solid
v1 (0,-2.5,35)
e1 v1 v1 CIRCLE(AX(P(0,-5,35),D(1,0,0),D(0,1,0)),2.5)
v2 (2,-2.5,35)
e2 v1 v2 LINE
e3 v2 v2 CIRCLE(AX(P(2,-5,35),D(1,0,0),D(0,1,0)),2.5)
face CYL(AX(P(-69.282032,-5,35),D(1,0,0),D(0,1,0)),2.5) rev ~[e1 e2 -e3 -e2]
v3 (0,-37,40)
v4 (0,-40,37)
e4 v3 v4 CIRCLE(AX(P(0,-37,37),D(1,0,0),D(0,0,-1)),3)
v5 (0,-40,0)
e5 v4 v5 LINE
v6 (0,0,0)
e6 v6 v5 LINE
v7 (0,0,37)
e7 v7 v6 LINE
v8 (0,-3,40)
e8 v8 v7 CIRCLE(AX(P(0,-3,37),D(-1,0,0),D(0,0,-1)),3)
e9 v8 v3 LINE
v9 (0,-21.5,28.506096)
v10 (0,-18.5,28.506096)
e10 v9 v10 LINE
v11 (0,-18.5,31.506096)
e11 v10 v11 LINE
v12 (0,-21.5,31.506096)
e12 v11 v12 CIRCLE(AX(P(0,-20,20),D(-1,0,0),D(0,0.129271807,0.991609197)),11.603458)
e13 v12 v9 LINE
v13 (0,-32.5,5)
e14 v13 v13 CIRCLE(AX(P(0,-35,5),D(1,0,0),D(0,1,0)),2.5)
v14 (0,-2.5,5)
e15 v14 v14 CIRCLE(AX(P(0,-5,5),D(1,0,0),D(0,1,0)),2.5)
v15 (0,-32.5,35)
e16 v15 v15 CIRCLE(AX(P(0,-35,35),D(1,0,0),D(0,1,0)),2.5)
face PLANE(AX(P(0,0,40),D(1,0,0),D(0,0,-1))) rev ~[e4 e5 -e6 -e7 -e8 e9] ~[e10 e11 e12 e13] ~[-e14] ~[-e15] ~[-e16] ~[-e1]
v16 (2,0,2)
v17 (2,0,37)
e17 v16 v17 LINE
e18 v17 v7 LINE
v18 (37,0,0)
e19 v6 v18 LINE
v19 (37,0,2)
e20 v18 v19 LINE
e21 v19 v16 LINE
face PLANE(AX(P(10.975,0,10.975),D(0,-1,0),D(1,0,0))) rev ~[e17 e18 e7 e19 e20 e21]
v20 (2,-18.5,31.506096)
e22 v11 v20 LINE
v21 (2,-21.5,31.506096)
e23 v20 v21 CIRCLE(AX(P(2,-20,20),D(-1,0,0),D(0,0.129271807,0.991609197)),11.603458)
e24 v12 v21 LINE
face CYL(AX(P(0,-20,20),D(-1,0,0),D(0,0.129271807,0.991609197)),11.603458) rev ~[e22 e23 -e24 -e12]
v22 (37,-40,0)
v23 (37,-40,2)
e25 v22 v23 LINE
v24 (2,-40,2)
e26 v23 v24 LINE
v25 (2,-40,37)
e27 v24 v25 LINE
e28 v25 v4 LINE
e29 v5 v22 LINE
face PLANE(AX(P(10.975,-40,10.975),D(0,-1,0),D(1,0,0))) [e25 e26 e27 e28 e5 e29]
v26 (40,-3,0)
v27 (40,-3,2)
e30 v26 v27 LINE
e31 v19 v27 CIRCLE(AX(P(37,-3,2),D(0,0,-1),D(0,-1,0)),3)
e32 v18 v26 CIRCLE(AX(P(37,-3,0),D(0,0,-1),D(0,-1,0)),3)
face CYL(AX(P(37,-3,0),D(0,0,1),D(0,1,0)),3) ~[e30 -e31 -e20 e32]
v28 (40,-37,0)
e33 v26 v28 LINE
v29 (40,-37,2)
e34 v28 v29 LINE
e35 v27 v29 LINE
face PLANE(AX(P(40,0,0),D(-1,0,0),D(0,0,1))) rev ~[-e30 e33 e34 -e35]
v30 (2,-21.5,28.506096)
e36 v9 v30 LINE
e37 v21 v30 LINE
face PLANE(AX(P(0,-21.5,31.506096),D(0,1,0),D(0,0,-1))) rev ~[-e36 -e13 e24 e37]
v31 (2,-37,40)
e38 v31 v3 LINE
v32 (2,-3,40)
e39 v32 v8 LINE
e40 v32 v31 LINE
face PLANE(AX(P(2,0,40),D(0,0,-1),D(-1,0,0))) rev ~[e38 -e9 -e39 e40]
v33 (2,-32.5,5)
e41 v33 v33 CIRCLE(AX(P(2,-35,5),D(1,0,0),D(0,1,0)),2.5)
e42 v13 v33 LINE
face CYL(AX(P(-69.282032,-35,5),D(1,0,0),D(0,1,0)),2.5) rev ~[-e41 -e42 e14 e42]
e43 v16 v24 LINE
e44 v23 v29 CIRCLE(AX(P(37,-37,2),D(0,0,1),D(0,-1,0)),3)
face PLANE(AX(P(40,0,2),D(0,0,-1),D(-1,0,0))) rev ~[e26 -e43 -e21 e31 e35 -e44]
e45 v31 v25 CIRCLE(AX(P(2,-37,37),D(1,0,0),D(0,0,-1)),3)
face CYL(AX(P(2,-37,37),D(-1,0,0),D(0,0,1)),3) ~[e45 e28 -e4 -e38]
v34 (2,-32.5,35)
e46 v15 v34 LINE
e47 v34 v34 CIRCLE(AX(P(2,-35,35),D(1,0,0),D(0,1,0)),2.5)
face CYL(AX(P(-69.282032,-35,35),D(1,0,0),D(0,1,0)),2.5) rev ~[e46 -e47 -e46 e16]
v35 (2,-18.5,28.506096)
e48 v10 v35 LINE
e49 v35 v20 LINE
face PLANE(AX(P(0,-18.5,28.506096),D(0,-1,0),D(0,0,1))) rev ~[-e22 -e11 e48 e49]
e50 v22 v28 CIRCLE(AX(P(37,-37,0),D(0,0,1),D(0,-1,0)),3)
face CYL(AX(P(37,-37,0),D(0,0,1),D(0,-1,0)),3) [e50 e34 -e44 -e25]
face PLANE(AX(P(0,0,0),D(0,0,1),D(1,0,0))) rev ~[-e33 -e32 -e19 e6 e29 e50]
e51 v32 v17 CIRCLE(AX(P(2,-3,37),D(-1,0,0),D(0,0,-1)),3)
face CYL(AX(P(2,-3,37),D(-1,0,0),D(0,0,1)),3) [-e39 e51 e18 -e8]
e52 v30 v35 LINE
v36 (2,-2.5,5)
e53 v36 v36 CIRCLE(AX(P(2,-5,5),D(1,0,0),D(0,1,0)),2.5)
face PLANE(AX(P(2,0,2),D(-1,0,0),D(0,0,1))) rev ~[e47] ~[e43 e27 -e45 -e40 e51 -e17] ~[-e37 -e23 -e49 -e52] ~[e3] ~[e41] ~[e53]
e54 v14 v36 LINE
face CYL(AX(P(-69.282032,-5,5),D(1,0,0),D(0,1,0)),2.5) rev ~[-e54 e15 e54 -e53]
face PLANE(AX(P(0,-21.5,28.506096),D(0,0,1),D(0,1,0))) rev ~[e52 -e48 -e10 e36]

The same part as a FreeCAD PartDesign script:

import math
import FreeCAD as App
import Part
import Sketcher
from FreeCAD import Vector


def edges_at(feature, points):
    """Names of the edges that pass closest to the given points."""
    edges = feature.Shape.Edges
    near = lambda p: min(range(len(edges)), key=lambda i: edges[i].distToShape(Part.Vertex(*p))[0])
    return sorted({f"Edge{near(p) + 1}" for p in points})

doc = App.newDocument("Part")
body = doc.addObject("PartDesign::Body", "Body")

# Sketch on XZ plane
sketch1 = doc.addObject("Sketcher::SketchObject", "Sketch")
body.addObject(sketch1)
sketch1.AttachmentSupport = (doc.XZ_Plane, [""])
sketch1.MapMode = "FlatFace"
sketch1.addGeometry(Part.LineSegment(Vector(0, 40, 0), Vector(0, 0, 0)), False)
sketch1.addGeometry(Part.LineSegment(Vector(0, 0, 0), Vector(40, 0, 0)), False)
sketch1.addGeometry(Part.LineSegment(Vector(40, 0, 0), Vector(40, 2, 0)), False)
sketch1.addGeometry(Part.LineSegment(Vector(40, 2, 0), Vector(2, 2, 0)), False)
sketch1.addGeometry(Part.LineSegment(Vector(2, 2, 0), Vector(2, 40, 0)), False)
sketch1.addGeometry(Part.LineSegment(Vector(2, 40, 0), Vector(0, 40, 0)), False)
sketch1.addConstraint(Sketcher.Constraint("Coincident", 0, 2, 1, 1))
sketch1.addConstraint(Sketcher.Constraint("Coincident", 1, 2, 2, 1))
sketch1.addConstraint(Sketcher.Constraint("Coincident", 2, 2, 3, 1))
sketch1.addConstraint(Sketcher.Constraint("Coincident", 3, 2, 4, 1))
sketch1.addConstraint(Sketcher.Constraint("Coincident", 4, 2, 5, 1))
sketch1.addConstraint(Sketcher.Constraint("Coincident", 5, 2, 0, 1))
sketch1.addConstraint(Sketcher.Constraint("Vertical", 0))
sketch1.addConstraint(Sketcher.Constraint("Horizontal", 1))
sketch1.addConstraint(Sketcher.Constraint("Vertical", 2))
sketch1.addConstraint(Sketcher.Constraint("Horizontal", 3))
sketch1.addConstraint(Sketcher.Constraint("Vertical", 4))
sketch1.addConstraint(Sketcher.Constraint("Horizontal", 5))
sketch1.addConstraint(Sketcher.Constraint("Coincident", 0, 2, -1, 1))
sketch1.addConstraint(Sketcher.Constraint("Equal", 1, 0))
sketch1.addConstraint(Sketcher.Constraint("Equal", 5, 2))
sketch1.addConstraint(Sketcher.Constraint("DistanceX", 1, 1, 1, 2, 40.0))
sketch1.addConstraint(Sketcher.Constraint("DistanceX", 3, 2, 3, 1, 38.0))
pad1 = doc.addObject("PartDesign::Pad", "Pad")
body.addObject(pad1)
pad1.Profile = sketch1
pad1.Length = 40

# Sketch on YZ plane
sketch2 = doc.addObject("Sketcher::SketchObject", "Sketch001")
body.addObject(sketch2)
sketch2.AttachmentSupport = (doc.YZ_Plane, [""])
sketch2.MapMode = "FlatFace"
sketch2.addGeometry(Part.Circle(Vector(-5, 5, 0), Vector(0, 0, 1), 2.5), False)
sketch2.addGeometry(Part.Circle(Vector(-5, 35, 0), Vector(0, 0, 1), 2.5), False)
sketch2.addGeometry(Part.Circle(Vector(-35, 5, 0), Vector(0, 0, 1), 2.5), False)
sketch2.addGeometry(Part.Circle(Vector(-35, 35, 0), Vector(0, 0, 1), 2.5), False)
sketch2.addConstraint(Sketcher.Constraint("Equal", 0, 1))
sketch2.addConstraint(Sketcher.Constraint("Equal", 1, 2))
sketch2.addConstraint(Sketcher.Constraint("Equal", 2, 3))
sketch2.addConstraint(Sketcher.Constraint("Horizontal", 0, 3, 2, 3))
sketch2.addConstraint(Sketcher.Constraint("Horizontal", 1, 3, 3, 3))
sketch2.addConstraint(Sketcher.Constraint("Vertical", 0, 3, 1, 3))
sketch2.addConstraint(Sketcher.Constraint("Vertical", 2, 3, 3, 3))
sketch2.addConstraint(Sketcher.Constraint("Diameter", 0, 5.0))
sketch2.addConstraint(Sketcher.Constraint("DistanceX", 0, 3, -1, 1, 5.0))
sketch2.addConstraint(Sketcher.Constraint("DistanceY", -1, 1, 0, 3, 5.0))
sketch2.addConstraint(Sketcher.Constraint("DistanceY", -1, 1, 1, 3, 35.0))
sketch2.addConstraint(Sketcher.Constraint("DistanceX", 2, 3, -1, 1, 35.0))
doc.recompute()
hole = doc.addObject("PartDesign::Hole", "Hole")
body.addObject(hole)
hole.Profile = sketch2
hole.ThreadType = "None"
hole.Diameter = 5
hole.DepthType = "ThroughAll"
hole.Reversed = True

# Sketch on YZ plane
sketch3 = doc.addObject("Sketcher::SketchObject", "Sketch002")
body.addObject(sketch3)
sketch3.AttachmentSupport = (doc.YZ_Plane, [""])
sketch3.MapMode = "FlatFace"
sketch3.addGeometry(Part.LineSegment(Vector(-18.5, 28.5, 0), Vector(-18.5, 31.5, 0)), False)
sketch3.addGeometry(Part.ArcOfCircle(Part.Circle(Vector(-20, 20, 0), Vector(0, 0, 1), 11.6), math.radians(97), math.radians(443)), False)
sketch3.addGeometry(Part.LineSegment(Vector(-21.5, 31.5, 0), Vector(-21.5, 28.5, 0)), False)
sketch3.addGeometry(Part.LineSegment(Vector(-21.5, 28.5, 0), Vector(-18.5, 28.5, 0)), False)
sketch3.addConstraint(Sketcher.Constraint("Coincident", 0, 2, 1, 2))
sketch3.addConstraint(Sketcher.Constraint("Coincident", 1, 1, 2, 1))
sketch3.addConstraint(Sketcher.Constraint("Coincident", 2, 2, 3, 1))
sketch3.addConstraint(Sketcher.Constraint("Coincident", 3, 2, 0, 1))
sketch3.addConstraint(Sketcher.Constraint("Vertical", 0))
sketch3.addConstraint(Sketcher.Constraint("Vertical", 2))
sketch3.addConstraint(Sketcher.Constraint("Horizontal", 3))
sketch3.addConstraint(Sketcher.Constraint("Horizontal", 0, 2, 1, 1))
sketch3.addConstraint(Sketcher.Constraint("Equal", 3, 0))
sketch3.addConstraint(Sketcher.Constraint("DistanceX", 3, 1, 3, 2, 3.0))
sketch3.addConstraint(Sketcher.Constraint("DistanceX", 1, 3, -1, 1, 20.0))
sketch3.addConstraint(Sketcher.Constraint("DistanceY", -1, 1, 1, 3, 20.0))
sketch3.addConstraint(Sketcher.Constraint("Radius", 1, 11.603458))
pocket1 = doc.addObject("PartDesign::Pocket", "Pocket")
body.addObject(pocket1)
pocket1.Profile = sketch3
pocket1.Length = 20
pocket1.Reversed = True
doc.recompute()

fillet = doc.addObject("PartDesign::Fillet", "Fillet")
body.addObject(fillet)
fillet.Base = (pocket1, edges_at(pocket1, [
    (1, -40, 40),
    (1, 0, 40),
    (40, -40, 1),
    (40, 0, 1),
]))
fillet.Radius = 3

doc.recompute()
